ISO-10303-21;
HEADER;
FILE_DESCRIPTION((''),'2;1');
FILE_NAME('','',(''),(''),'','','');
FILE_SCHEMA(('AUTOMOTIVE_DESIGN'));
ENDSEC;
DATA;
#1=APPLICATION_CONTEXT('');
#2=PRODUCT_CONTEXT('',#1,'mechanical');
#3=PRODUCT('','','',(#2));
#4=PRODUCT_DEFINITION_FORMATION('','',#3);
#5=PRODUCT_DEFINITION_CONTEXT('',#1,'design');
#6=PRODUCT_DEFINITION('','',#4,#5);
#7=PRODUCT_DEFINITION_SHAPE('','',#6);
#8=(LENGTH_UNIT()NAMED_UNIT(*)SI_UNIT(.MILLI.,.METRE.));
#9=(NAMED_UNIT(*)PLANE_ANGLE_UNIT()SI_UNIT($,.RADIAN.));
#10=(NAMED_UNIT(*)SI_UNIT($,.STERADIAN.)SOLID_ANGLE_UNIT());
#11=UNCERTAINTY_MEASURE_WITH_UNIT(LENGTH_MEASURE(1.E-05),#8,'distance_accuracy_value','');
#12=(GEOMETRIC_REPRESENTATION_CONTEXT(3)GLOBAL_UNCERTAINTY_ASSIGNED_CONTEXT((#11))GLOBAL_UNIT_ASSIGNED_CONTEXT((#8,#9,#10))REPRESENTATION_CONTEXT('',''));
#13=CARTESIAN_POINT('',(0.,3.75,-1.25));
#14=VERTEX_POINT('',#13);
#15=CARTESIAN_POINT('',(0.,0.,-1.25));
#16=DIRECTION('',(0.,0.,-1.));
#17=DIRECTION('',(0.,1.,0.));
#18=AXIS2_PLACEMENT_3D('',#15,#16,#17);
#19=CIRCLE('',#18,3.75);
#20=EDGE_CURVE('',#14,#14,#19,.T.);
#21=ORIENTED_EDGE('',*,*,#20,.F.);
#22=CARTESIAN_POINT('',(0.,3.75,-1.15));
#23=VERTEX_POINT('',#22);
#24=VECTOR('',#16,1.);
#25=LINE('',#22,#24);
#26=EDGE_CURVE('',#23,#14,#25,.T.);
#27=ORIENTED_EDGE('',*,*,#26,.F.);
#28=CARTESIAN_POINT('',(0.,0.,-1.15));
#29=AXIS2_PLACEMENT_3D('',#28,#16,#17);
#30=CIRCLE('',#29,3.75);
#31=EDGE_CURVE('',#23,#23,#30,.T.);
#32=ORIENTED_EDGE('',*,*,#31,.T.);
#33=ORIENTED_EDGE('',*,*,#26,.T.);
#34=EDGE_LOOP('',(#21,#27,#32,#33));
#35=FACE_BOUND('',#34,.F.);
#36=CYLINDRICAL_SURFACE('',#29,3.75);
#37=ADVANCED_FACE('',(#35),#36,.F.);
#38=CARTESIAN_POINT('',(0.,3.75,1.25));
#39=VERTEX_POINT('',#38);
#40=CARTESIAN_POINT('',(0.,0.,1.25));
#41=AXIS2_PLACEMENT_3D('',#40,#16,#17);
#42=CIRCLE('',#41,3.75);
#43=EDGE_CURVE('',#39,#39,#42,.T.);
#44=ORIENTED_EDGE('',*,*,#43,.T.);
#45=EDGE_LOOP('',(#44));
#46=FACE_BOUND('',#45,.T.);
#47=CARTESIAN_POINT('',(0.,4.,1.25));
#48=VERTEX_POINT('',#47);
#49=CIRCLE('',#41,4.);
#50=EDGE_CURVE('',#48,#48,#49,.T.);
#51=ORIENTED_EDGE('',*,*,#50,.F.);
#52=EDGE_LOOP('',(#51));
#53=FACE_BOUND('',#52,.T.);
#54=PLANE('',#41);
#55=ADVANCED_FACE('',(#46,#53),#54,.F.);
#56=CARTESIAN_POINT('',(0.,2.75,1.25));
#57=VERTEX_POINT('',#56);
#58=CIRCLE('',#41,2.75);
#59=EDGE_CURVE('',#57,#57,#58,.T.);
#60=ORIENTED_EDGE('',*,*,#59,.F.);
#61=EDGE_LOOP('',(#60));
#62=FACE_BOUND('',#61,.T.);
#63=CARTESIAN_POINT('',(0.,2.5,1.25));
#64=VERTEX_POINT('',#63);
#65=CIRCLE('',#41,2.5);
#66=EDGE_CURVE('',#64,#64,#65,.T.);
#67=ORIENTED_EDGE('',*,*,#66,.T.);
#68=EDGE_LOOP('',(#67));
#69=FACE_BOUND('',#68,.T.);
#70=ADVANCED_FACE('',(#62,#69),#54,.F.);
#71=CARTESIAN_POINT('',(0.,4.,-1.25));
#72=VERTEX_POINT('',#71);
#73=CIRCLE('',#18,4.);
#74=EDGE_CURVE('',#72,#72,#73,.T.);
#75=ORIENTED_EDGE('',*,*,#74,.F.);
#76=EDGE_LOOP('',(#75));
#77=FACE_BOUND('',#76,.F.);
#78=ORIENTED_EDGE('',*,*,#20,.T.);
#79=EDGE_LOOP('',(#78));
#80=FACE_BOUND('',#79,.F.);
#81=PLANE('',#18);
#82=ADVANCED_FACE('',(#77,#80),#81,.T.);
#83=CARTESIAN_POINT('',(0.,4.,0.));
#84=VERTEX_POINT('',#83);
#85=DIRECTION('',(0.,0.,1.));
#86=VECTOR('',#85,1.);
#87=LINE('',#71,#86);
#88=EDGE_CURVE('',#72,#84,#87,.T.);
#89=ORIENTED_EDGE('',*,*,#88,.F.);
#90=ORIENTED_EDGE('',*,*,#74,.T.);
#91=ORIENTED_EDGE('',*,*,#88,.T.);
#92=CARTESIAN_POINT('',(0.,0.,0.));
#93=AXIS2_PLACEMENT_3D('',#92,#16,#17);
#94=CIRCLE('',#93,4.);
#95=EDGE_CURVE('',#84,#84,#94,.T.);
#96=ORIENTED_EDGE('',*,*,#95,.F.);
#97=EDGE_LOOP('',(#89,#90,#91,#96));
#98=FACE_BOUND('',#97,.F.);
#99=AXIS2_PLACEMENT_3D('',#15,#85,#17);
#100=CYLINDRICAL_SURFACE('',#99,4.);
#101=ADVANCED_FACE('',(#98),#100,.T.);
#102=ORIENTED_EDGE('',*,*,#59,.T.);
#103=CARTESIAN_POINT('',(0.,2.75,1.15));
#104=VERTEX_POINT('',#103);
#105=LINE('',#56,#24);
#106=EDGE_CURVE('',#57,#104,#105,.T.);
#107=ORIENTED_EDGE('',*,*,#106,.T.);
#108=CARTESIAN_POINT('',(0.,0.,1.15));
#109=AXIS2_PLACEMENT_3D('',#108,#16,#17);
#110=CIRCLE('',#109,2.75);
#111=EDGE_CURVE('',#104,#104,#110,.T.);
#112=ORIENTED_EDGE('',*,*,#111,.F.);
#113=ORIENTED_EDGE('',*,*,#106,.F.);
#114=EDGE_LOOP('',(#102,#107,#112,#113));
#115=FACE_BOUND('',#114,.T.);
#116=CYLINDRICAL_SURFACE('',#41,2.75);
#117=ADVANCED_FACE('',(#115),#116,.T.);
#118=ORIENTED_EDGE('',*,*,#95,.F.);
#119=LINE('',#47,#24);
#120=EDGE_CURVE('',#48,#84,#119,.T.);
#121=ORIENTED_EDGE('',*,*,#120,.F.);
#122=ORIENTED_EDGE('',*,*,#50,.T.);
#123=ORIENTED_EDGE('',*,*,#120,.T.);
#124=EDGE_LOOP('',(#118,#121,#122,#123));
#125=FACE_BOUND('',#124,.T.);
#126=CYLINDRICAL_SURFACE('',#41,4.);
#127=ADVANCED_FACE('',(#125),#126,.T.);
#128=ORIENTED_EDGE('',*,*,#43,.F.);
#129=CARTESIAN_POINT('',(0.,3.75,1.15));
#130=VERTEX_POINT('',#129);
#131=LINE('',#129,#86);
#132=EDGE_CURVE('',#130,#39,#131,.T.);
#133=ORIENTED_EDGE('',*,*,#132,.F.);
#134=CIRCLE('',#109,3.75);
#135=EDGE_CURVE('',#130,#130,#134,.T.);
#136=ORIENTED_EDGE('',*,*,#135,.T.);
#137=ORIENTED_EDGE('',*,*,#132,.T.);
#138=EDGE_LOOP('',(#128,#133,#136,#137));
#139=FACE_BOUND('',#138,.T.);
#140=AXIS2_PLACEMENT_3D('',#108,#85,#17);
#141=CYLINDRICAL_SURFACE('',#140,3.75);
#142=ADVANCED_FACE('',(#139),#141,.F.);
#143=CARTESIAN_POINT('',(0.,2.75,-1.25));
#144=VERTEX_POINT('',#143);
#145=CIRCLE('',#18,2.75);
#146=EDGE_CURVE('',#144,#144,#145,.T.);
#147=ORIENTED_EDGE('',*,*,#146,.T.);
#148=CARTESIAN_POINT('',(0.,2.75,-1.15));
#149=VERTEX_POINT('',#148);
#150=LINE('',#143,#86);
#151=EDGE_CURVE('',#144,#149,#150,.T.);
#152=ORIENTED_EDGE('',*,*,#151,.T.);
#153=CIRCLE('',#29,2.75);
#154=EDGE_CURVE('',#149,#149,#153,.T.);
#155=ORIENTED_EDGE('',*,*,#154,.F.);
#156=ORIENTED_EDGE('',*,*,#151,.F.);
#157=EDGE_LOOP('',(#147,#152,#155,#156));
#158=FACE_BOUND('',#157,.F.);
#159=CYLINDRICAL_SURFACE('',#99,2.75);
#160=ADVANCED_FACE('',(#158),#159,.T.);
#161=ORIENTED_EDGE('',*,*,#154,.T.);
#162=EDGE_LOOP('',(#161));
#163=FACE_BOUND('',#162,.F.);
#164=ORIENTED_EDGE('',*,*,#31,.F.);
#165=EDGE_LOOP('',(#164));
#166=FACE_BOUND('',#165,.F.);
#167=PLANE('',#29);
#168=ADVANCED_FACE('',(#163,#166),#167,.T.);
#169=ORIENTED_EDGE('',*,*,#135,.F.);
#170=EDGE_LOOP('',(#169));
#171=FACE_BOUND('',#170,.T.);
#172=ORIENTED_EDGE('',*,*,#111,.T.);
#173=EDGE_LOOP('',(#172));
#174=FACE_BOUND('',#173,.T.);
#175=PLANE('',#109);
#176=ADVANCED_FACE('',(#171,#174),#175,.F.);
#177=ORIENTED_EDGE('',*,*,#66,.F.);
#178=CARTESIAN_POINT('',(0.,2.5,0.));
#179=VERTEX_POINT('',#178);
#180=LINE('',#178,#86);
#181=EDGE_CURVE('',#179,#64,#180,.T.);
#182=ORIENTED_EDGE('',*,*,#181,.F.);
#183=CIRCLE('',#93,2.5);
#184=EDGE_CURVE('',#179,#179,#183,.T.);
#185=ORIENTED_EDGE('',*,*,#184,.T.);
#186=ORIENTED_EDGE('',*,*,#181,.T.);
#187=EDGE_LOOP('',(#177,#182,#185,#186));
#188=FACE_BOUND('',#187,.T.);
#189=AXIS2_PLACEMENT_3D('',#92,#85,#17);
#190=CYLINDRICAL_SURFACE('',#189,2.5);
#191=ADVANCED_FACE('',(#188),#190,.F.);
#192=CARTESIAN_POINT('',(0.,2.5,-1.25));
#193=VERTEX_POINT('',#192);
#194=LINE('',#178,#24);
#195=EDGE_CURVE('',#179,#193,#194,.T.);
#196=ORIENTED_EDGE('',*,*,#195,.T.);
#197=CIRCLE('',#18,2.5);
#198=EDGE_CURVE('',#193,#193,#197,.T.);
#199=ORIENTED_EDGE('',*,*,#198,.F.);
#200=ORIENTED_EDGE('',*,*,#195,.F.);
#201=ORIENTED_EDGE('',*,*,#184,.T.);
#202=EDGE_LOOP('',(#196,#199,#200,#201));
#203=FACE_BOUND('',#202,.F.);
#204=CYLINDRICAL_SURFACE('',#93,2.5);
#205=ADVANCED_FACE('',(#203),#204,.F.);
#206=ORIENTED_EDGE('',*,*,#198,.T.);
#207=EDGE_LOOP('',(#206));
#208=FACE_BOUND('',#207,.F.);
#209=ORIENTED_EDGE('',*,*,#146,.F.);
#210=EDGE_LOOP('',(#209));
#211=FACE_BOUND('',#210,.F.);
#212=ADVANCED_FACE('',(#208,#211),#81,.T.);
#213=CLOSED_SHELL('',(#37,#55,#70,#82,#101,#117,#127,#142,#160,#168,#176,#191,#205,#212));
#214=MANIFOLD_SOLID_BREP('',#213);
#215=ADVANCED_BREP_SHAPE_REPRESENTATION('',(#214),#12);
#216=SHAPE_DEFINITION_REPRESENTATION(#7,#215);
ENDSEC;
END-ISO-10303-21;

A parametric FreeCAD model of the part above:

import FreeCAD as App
import Part
import Sketcher
Q = App.Units.Quantity

doc = App.newDocument("Part")
body = doc.addObject("PartDesign::Body", "Body")

# Sketch on YZ plane
sketch1 = body.newObject("Sketcher::SketchObject", "Sketch")
sketch1.AttachmentSupport = (doc.getObject("YZ_Plane"), [""])
sketch1.MapMode = "FlatFace"
sketch1.addGeometry(Part.LineSegment(App.Vector(2.5, 1.25, 0), App.Vector(2.5, -1.25, 0)), False)
sketch1.addGeometry(Part.LineSegment(App.Vector(2.5, -1.25, 0), App.Vector(2.75, -1.25, 0)), False)
sketch1.addGeometry(Part.LineSegment(App.Vector(2.75, -1.25, 0), App.Vector(2.75, -1.15, 0)), False)
sketch1.addGeometry(Part.LineSegment(App.Vector(2.75, -1.15, 0), App.Vector(3.75, -1.15, 0)), False)
sketch1.addGeometry(Part.LineSegment(App.Vector(3.75, -1.15, 0), App.Vector(3.75, -1.25, 0)), False)
sketch1.addGeometry(Part.LineSegment(App.Vector(3.75, -1.25, 0), App.Vector(4, -1.25, 0)), False)
sketch1.addGeometry(Part.LineSegment(App.Vector(4, -1.25, 0), App.Vector(4, 1.25, 0)), False)
sketch1.addGeometry(Part.LineSegment(App.Vector(4, 1.25, 0), App.Vector(3.75, 1.25, 0)), False)
sketch1.addGeometry(Part.LineSegment(App.Vector(3.75, 1.25, 0), App.Vector(3.75, 1.15, 0)), False)
sketch1.addGeometry(Part.LineSegment(App.Vector(3.75, 1.15, 0), App.Vector(2.75, 1.15, 0)), False)
sketch1.addGeometry(Part.LineSegment(App.Vector(2.75, 1.15, 0), App.Vector(2.75, 1.25, 0)), False)
sketch1.addGeometry(Part.LineSegment(App.Vector(2.75, 1.25, 0), App.Vector(2.5, 1.25, 0)), False)
sketch1.addConstraint(Sketcher.Constraint("Coincident", 0, 2, 1, 1))
sketch1.addConstraint(Sketcher.Constraint("Coincident", 1, 2, 2, 1))
sketch1.addConstraint(Sketcher.Constraint("Coincident", 2, 2, 3, 1))
sketch1.addConstraint(Sketcher.Constraint("Coincident", 3, 2, 4, 1))
sketch1.addConstraint(Sketcher.Constraint("Coincident", 4, 2, 5, 1))
sketch1.addConstraint(Sketcher.Constraint("Coincident", 5, 2, 6, 1))
sketch1.addConstraint(Sketcher.Constraint("Coincident", 6, 2, 7, 1))
sketch1.addConstraint(Sketcher.Constraint("Coincident", 7, 2, 8, 1))
sketch1.addConstraint(Sketcher.Constraint("Coincident", 8, 2, 9, 1))
sketch1.addConstraint(Sketcher.Constraint("Coincident", 9, 2, 10, 1))
sketch1.addConstraint(Sketcher.Constraint("Coincident", 10, 2, 11, 1))
sketch1.addConstraint(Sketcher.Constraint("Coincident", 11, 2, 0, 1))
sketch1.addConstraint(Sketcher.Constraint("Vertical", 0))
sketch1.addConstraint(Sketcher.Constraint("Horizontal", 1))
sketch1.addConstraint(Sketcher.Constraint("Vertical", 2))
sketch1.addConstraint(Sketcher.Constraint("Horizontal", 3))
sketch1.addConstraint(Sketcher.Constraint("Vertical", 4))
sketch1.addConstraint(Sketcher.Constraint("Horizontal", 5))
sketch1.addConstraint(Sketcher.Constraint("Vertical", 6))
sketch1.addConstraint(Sketcher.Constraint("Horizontal", 7))
sketch1.addConstraint(Sketcher.Constraint("Vertical", 8))
sketch1.addConstraint(Sketcher.Constraint("Horizontal", 9))
sketch1.addConstraint(Sketcher.Constraint("Vertical", 10))
sketch1.addConstraint(Sketcher.Constraint("Horizontal", 11))
sketch1.addConstraint(Sketcher.Constraint("Symmetric", 4, 2, 7, 2, -1))
sketch1.addConstraint(Sketcher.Constraint("Symmetric", 2, 2, 9, 2, -1))
sketch1.addConstraint(Sketcher.Constraint("Horizontal", 1, 2, 4, 2))
sketch1.addConstraint(Sketcher.Constraint("Horizontal", 7, 2, 10, 2))
sketch1.addConstraint(Sketcher.Constraint("Equal", 1, 5))
sketch1.addConstraint(Sketcher.Constraint("DistanceX", 3, 1, 3, 2, Q("1 mm")))
sketch1.addConstraint(Sketcher.Constraint("DistanceY", 0, 2, 0, 1, Q("2.5 mm")))
sketch1.addConstraint(Sketcher.Constraint("DistanceY", 2, 1, 2, 2, Q("0.1 mm")))
sketch1.addConstraint(Sketcher.Constraint("DistanceX", -1, 1, 5, 2, Q("4 mm")))
sketch1.addConstraint(Sketcher.Constraint("DistanceX", -1, 1, 0, 2, Q("2.5 mm")))
revolution = body.newObject("PartDesign::Revolution", "Revolution")
revolution.Profile = sketch1
revolution.ReferenceAxis = (sketch1, ["V_Axis"])
revolution.Angle = 360

doc.recompute()
